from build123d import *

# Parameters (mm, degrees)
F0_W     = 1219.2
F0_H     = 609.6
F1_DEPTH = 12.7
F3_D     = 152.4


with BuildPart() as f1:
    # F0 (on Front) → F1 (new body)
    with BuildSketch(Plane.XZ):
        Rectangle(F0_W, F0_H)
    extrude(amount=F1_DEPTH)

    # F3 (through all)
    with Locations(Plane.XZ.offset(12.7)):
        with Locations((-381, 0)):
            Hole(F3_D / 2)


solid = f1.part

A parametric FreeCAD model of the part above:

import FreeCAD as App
import Part
import Sketcher

V = App.Vector
Q = App.Units.Quantity

doc = App.newDocument("Part")
body = doc.addObject("PartDesign::Body", "Body")

sketch1 = body.newObject("Sketcher::SketchObject", "Sketch")
sketch1.AttachmentSupport = (doc.getObject("XZ_Plane"), [""])
sketch1.MapMode = "FlatFace"
sketch1.addGeometry(Part.LineSegment(V(-609.6, 304.8, 0), V(-609.6, -304.8, 0)), False)
sketch1.addGeometry(Part.LineSegment(V(-609.6, -304.8, 0), V(609.6, -304.8, 0)), False)
sketch1.addGeometry(Part.LineSegment(V(609.6, -304.8, 0), V(609.6, 304.8, 0)), False)
sketch1.addGeometry(Part.LineSegment(V(609.6, 304.8, 0), V(-609.6, 304.8, 0)), False)
sketch1.addConstraint(Sketcher.Constraint("Coincident", 0, 2, 1, 1))
sketch1.addConstraint(Sketcher.Constraint("Coincident", 1, 2, 2, 1))
sketch1.addConstraint(Sketcher.Constraint("Coincident", 2, 2, 3, 1))
sketch1.addConstraint(Sketcher.Constraint("Coincident", 3, 2, 0, 1))
sketch1.addConstraint(Sketcher.Constraint("Vertical", 0))
sketch1.addConstraint(Sketcher.Constraint("Horizontal", 1))
sketch1.addConstraint(Sketcher.Constraint("Vertical", 2))
sketch1.addConstraint(Sketcher.Constraint("Horizontal", 3))
sketch1.addConstraint(Sketcher.Constraint("Symmetric", 0, 2, 2, 2, -1, 1))
sketch1.addConstraint(Sketcher.Constraint("DistanceX", 1, 1, 1, 2, Q("48 in")))
sketch1.addConstraint(Sketcher.Constraint("DistanceY", 0, 2, 0, 1, Q("24 in")))
pad1 = body.newObject("PartDesign::Pad", "Pad")
pad1.Profile = sketch1
pad1.Length = Q("0.5 in")

sketch2 = body.newObject("Sketcher::SketchObject", "Sketch001")
sketch2.AttachmentSupport = (doc.getObject("XZ_Plane"), [""])
sketch2.MapMode = "FlatFace"
sketch2.AttachmentOffset = App.Placement(V(0, 0, 0.5 * 25.4), App.Rotation())
sketch2.addGeometry(Part.Circle(V(-381, 0, 0), V(0, 0, 1), 76.2), False)
sketch2.addConstraint(Sketcher.Constraint("PointOnObject", 0, 3, -1))
sketch2.addConstraint(Sketcher.Constraint("Diameter", 0, Q("6 in")))
sketch2.addConstraint(Sketcher.Constraint("DistanceX", 0, 3, -1, 1, Q("15 in")))
doc.recompute()
hole = body.newObject("PartDesign::Hole", "Hole")
hole.Profile = sketch2
hole.ThreadType = "None"
hole.Diameter = Q("6 in")
hole.DepthType = "ThroughAll"

doc.recompute()
